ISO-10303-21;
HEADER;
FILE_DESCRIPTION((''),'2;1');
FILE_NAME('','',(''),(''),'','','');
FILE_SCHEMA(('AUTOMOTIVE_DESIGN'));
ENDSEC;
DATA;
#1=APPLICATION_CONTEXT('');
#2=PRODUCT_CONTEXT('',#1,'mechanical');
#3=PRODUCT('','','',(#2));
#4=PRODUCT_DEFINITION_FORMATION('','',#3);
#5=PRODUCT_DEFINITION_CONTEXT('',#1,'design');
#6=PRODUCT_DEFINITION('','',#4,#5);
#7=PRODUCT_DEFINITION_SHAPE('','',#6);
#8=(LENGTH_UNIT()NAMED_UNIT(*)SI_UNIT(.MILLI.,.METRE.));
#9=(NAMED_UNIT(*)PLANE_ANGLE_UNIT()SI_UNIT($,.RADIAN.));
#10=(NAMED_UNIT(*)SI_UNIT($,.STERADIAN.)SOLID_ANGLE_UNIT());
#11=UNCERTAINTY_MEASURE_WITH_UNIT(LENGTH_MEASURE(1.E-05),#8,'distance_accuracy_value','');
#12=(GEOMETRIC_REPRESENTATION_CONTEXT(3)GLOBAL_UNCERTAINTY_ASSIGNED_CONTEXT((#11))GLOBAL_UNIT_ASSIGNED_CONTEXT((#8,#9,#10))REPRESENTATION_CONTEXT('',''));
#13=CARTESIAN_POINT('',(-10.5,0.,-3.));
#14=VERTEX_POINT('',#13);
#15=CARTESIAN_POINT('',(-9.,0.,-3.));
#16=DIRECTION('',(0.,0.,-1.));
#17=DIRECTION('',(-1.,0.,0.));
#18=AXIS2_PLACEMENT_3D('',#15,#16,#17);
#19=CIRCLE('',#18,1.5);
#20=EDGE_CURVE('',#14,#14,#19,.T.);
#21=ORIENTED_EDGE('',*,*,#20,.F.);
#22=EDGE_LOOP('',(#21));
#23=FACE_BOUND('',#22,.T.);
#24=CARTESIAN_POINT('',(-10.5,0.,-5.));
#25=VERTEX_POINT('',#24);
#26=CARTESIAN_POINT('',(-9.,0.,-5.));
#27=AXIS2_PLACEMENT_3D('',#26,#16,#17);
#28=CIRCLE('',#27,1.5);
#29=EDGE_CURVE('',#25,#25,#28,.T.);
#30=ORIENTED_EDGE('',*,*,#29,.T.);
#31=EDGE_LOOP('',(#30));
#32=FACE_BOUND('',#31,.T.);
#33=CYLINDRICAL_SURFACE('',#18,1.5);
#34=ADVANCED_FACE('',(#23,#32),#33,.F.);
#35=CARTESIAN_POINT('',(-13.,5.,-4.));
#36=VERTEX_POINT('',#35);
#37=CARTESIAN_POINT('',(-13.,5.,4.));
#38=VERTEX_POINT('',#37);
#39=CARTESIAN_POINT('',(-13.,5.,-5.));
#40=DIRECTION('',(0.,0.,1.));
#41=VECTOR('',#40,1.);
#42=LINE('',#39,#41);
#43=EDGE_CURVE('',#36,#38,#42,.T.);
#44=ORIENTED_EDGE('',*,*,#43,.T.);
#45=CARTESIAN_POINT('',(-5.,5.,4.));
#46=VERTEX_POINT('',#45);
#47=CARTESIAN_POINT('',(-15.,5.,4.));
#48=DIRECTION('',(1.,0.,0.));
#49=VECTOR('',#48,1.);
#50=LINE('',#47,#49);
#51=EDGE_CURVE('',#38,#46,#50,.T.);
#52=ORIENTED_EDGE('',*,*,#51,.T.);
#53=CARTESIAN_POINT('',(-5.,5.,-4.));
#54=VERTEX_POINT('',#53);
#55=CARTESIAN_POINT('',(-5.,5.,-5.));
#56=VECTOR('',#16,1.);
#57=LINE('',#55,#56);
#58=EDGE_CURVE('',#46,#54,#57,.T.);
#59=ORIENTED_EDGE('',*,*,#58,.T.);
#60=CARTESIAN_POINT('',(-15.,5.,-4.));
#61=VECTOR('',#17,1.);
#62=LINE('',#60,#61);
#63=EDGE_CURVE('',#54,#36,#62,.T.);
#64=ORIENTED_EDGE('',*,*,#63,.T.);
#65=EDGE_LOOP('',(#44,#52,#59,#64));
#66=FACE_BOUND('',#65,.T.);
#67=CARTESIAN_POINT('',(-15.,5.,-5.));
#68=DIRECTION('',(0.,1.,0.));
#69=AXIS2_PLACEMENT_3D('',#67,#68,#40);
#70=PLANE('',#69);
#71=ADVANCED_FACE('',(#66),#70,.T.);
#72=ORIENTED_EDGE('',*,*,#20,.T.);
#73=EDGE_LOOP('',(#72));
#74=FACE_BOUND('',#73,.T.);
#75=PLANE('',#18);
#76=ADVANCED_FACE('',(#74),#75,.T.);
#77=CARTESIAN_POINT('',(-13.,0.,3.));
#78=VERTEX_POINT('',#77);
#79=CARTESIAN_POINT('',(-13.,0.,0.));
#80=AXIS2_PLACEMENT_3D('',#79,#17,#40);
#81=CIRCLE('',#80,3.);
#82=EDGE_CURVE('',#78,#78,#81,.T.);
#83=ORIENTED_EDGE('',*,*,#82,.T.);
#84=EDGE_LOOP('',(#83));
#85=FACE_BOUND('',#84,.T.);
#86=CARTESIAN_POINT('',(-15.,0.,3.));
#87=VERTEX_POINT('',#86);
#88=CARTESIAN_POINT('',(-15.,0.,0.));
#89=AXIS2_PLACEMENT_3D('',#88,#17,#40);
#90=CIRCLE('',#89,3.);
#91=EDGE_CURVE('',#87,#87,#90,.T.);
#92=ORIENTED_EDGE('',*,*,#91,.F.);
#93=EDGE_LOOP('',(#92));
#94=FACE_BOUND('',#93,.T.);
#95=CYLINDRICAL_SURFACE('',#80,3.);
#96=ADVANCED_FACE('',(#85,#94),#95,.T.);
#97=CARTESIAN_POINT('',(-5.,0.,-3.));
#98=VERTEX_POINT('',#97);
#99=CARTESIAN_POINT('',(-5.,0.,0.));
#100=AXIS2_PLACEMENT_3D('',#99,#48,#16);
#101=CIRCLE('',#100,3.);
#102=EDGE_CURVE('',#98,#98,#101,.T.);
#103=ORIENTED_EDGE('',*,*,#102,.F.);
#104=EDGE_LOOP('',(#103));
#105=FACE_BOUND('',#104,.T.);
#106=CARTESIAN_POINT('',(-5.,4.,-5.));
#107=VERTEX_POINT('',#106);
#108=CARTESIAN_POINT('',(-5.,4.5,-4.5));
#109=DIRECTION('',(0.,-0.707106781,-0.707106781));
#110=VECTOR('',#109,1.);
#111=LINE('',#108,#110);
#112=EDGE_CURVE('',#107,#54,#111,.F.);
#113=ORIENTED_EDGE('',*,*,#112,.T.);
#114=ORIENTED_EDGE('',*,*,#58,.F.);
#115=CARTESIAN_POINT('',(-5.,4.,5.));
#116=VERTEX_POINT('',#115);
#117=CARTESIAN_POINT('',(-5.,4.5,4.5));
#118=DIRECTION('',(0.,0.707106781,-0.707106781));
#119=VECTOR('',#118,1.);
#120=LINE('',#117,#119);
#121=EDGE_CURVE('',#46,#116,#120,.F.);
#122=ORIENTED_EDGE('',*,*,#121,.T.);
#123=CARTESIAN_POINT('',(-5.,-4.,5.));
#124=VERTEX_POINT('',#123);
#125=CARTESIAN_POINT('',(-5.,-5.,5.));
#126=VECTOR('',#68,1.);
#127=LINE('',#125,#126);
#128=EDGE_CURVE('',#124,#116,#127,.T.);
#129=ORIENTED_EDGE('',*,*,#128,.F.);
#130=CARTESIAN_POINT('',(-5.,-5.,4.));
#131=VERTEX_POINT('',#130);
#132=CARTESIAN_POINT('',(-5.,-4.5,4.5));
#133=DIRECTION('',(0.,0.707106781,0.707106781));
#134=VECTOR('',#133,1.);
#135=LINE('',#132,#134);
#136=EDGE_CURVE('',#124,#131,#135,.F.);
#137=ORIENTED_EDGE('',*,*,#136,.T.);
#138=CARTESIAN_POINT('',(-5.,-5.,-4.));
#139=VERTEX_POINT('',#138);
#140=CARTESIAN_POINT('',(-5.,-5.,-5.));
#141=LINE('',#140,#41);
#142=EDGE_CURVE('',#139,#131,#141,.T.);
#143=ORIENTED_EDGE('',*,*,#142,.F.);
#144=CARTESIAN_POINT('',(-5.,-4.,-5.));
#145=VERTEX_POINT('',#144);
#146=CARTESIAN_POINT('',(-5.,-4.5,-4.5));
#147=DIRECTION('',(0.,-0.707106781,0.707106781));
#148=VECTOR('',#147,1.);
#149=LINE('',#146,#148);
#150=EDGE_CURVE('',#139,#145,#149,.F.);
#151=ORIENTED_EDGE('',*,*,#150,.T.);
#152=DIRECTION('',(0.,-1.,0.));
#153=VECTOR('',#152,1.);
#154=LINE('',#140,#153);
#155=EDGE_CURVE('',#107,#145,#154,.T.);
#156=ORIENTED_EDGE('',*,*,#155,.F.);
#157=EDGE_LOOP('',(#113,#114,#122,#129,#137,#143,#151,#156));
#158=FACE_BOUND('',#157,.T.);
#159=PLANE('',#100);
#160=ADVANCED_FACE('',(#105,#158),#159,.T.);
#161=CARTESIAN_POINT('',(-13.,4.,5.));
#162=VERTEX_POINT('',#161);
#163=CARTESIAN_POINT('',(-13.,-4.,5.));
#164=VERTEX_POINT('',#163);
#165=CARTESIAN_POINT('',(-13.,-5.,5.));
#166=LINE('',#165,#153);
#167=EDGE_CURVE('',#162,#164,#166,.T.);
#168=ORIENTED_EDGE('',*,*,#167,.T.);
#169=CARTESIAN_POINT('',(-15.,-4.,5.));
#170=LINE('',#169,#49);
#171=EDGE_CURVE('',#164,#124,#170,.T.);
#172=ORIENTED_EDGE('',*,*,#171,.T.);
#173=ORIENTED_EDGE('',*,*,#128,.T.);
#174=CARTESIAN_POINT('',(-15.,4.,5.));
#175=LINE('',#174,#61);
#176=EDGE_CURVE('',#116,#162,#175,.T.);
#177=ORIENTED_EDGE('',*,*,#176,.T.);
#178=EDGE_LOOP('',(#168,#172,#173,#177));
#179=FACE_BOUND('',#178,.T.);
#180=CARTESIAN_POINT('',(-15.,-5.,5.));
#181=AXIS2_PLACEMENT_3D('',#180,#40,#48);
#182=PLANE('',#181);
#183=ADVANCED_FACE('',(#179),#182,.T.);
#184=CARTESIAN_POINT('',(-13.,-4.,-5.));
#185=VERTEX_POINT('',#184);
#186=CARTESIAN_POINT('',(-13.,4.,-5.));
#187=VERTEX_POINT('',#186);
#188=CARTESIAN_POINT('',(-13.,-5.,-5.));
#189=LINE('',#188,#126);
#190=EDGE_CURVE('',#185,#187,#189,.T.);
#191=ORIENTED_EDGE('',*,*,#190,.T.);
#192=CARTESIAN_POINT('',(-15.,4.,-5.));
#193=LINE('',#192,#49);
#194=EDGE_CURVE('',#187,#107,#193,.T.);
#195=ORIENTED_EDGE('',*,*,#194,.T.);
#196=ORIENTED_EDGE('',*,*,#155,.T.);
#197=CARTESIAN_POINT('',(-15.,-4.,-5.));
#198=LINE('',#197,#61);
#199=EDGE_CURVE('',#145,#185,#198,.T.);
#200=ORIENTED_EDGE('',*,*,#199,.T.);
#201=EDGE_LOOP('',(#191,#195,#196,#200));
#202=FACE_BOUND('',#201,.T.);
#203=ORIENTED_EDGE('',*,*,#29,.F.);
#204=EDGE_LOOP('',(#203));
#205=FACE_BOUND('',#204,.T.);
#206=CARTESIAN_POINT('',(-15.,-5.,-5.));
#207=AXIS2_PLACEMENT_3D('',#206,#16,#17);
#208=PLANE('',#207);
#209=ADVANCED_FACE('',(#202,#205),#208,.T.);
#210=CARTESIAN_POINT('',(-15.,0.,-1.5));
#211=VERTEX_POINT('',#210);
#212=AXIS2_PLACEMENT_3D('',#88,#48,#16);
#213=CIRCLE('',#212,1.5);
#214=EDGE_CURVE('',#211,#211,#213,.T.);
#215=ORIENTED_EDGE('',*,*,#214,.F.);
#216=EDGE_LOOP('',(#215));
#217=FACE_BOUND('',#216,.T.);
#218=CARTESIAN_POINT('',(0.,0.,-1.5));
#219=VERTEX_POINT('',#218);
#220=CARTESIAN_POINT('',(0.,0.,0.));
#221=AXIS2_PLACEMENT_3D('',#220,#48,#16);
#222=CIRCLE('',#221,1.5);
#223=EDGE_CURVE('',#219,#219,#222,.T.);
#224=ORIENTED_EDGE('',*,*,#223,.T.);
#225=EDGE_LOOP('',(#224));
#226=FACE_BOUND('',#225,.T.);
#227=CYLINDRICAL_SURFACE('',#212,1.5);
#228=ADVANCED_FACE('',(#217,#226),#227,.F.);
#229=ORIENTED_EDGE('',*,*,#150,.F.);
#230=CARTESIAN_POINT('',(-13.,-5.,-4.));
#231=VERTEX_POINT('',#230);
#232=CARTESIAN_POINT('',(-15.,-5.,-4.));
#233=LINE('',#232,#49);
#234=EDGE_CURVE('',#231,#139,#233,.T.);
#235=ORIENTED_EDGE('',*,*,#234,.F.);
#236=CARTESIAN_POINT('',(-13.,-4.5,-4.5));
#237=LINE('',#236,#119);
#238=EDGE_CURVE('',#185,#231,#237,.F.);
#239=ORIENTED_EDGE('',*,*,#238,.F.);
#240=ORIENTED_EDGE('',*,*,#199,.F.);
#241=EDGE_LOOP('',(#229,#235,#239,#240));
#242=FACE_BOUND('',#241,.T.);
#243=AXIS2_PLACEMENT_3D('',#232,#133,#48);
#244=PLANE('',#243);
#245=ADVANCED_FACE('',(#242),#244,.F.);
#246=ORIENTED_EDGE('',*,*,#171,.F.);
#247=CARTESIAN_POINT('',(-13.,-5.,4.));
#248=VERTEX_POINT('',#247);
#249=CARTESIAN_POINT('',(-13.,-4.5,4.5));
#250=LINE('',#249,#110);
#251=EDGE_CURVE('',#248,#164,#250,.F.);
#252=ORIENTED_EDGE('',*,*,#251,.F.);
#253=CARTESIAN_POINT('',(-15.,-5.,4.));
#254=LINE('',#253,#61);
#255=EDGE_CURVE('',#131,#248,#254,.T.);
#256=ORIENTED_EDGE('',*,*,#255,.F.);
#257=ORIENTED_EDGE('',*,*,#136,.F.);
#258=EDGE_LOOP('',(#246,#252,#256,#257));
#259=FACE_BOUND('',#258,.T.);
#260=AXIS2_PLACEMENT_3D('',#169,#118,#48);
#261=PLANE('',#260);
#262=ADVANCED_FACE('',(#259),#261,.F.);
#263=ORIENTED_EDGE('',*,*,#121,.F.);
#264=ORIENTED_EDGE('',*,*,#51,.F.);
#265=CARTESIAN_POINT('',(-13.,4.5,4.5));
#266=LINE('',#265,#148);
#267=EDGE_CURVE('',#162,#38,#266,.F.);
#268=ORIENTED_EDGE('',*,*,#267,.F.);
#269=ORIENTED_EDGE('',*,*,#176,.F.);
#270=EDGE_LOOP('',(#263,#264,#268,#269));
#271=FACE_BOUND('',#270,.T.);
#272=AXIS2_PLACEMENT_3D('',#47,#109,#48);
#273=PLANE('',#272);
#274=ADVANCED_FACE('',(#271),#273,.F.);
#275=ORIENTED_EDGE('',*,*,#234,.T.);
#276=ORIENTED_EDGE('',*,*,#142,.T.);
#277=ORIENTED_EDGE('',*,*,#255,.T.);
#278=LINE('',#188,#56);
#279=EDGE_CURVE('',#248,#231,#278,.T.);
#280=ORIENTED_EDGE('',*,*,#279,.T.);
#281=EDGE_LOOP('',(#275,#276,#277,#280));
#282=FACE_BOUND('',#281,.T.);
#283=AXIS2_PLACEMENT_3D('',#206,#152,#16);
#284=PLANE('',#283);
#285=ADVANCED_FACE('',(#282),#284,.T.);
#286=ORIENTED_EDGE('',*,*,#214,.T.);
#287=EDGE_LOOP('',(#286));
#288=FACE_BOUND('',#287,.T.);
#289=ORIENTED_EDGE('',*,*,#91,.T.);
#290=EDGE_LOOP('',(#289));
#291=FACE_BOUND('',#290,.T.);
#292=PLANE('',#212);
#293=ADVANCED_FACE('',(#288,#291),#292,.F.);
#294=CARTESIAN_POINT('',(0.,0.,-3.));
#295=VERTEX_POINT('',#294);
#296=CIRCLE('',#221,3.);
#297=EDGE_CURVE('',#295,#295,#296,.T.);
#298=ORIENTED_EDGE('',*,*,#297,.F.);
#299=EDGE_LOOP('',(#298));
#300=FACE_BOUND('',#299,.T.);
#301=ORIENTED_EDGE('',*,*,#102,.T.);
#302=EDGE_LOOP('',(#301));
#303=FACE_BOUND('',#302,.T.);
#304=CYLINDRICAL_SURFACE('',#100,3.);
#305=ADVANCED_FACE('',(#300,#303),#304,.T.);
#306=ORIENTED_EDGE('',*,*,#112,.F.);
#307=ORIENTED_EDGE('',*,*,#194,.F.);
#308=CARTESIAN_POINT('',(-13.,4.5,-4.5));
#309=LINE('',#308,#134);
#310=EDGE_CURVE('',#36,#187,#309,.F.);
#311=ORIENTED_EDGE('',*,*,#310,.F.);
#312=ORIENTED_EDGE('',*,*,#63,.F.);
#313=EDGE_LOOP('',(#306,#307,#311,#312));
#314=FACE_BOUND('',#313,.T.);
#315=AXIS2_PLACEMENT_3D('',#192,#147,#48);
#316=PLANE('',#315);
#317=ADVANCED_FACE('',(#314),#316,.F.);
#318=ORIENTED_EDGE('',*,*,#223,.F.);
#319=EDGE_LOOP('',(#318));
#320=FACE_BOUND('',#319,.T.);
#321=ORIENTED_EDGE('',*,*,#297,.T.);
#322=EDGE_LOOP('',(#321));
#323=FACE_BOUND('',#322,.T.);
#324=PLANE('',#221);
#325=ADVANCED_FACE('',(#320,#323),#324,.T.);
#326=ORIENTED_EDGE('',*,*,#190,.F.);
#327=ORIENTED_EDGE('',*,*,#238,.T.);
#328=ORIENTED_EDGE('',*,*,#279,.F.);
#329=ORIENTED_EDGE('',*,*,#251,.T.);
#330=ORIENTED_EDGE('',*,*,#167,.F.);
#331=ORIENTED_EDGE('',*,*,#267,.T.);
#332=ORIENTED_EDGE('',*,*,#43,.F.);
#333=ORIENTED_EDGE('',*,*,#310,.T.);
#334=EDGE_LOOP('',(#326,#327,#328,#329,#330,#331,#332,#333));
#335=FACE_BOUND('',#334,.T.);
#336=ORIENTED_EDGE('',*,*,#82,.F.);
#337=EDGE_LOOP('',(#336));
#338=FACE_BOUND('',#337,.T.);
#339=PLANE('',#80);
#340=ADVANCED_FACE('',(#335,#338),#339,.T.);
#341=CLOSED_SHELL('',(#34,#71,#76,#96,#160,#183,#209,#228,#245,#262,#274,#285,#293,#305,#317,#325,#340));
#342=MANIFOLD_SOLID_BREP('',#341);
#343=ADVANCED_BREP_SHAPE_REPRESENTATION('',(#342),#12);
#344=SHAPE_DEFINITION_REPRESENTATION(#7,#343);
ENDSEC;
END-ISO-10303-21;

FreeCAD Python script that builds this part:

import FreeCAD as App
import Part
import Sketcher
from FreeCAD import Vector


def edges_at(feature, points):
    """Names of the edges that pass closest to the given points."""
    edges = feature.Shape.Edges
    near = lambda p: min(range(len(edges)), key=lambda i: edges[i].distToShape(Part.Vertex(*p))[0])
    return sorted({f"Edge{near(p) + 1}" for p in points})


def add_polygon(sketch, points):
    """Adds a closed chain of lines whose ends are joined by coincident constraints."""
    first, n = sketch.GeometryCount, len(points)
    for a, b in zip(points, points[1:] + points[:1]):
        sketch.addGeometry(Part.LineSegment(App.Vector(*a, 0), App.Vector(*b, 0)), False)
    for i in range(n):
        sketch.addConstraint(Sketcher.Constraint("Coincident", first + i, 2, first + (i + 1) % n, 1))

doc = App.newDocument("Part")
body = doc.addObject("PartDesign::Body", "Body")

# Sketch on YZ plane
sketch1 = body.newObject("Sketcher::SketchObject", "Sketch")
sketch1.AttachmentSupport = (doc.getObject("YZ_Plane"), [""])
sketch1.MapMode = "FlatFace"
add_polygon(sketch1, [(5, 5), (-5, 5), (-5, -5), (5, -5)])  # lines 0-3
sketch1.addConstraint([
    Sketcher.Constraint("Horizontal", 0),
    Sketcher.Constraint("Vertical", 1),
    Sketcher.Constraint("Horizontal", 2),
    Sketcher.Constraint("Vertical", 3),
    Sketcher.Constraint("Symmetric", 0, 2, 2, 2, -1, 1),
    Sketcher.Constraint("Equal", 2, 1),
    Sketcher.Constraint("DistanceX", 0, 2, 0, 1, 10.0),
])
pad1 = body.newObject("PartDesign::Pad", "Pad")
pad1.Profile = sketch1
pad1.Length = 15
pad1.Reversed = True

# Sketch on YZ plane
sketch2 = body.newObject("Sketcher::SketchObject", "Sketch001")
sketch2.AttachmentSupport = (doc.getObject("YZ_Plane"), [""])
sketch2.MapMode = "FlatFace"
sketch2.addGeometry([
    Part.Circle(Vector(0, 0, 0), Vector(0, 0, 1), 15.4),
    Part.Circle(Vector(0, 0, 0), Vector(0, 0, 1), 3),
], False)
sketch2.addConstraint([
    Sketcher.Constraint("Coincident", 0, 3, -1, 1),
    Sketcher.Constraint("Coincident", 1, 3, -1, 1),
    Sketcher.Constraint("Diameter", 1, 6.0),
    Sketcher.Constraint("Diameter", 0, 30.707136),
])
pocket1 = body.newObject("PartDesign::Pocket", "Pocket")
pocket1.Profile = sketch2
pocket1.Length = 5

# Sketch on YZ plane
sketch3 = body.newObject("Sketcher::SketchObject", "Sketch002")
sketch3.AttachmentSupport = (doc.getObject("YZ_Plane"), [""])
sketch3.MapMode = "FlatFace"
sketch3.AttachmentOffset = App.Placement(Vector(0, 0, -13), App.Rotation())
sketch3.addGeometry([
    Part.Circle(Vector(0, 0, 0), Vector(0, 0, 1), 15.6),
    Part.Circle(Vector(0, 0, 0), Vector(0, 0, 1), 3),
], False)
sketch3.addConstraint([
    Sketcher.Constraint("Coincident", 0, 3, -1, 1),
    Sketcher.Constraint("Coincident", 1, 3, -1, 1),
    Sketcher.Constraint("Diameter", 1, 6.0),
    Sketcher.Constraint("Diameter", 0, 31.270823),
])
pocket2 = body.newObject("PartDesign::Pocket", "Pocket001")
pocket2.Profile = sketch3
pocket2.Length = 2

# Sketch on YZ plane
sketch4 = body.newObject("Sketcher::SketchObject", "Sketch003")
sketch4.AttachmentSupport = (doc.getObject("YZ_Plane"), [""])
sketch4.MapMode = "FlatFace"
sketch4.addGeometry(Part.Circle(Vector(0, 0, 0), Vector(0, 0, 1), 1.5), False)
sketch4.addConstraint([
    Sketcher.Constraint("Coincident", 0, 3, -1, 1),
    Sketcher.Constraint("Diameter", 0, 3.0),
])
pocket3 = body.newObject("PartDesign::Pocket", "Pocket002")
pocket3.Profile = sketch4
pocket3.Type = "ThroughAll"
doc.recompute()

chamfer = body.newObject("PartDesign::Chamfer", "Chamfer")
chamfer.Base = (pocket3, edges_at(pocket3, [
    (-9, -5, -5),
    (-9, -5, 5),
    (-9, 5, -5),
    (-9, 5, 5),
]))
chamfer.Size = 1

# Sketch on XY plane
sketch5 = body.newObject("Sketcher::SketchObject", "Sketch004")
sketch5.AttachmentSupport = (doc.getObject("XY_Plane"), [""])
sketch5.MapMode = "FlatFace"
sketch5.AttachmentOffset = App.Placement(Vector(0, 0, -5), App.Rotation())
sketch5.addGeometry(Part.Circle(Vector(-9, 0, 0), Vector(0, 0, 1), 1.5), False)
sketch5.addConstraint([
    Sketcher.Constraint("PointOnObject", 0, 3, -1),
    Sketcher.Constraint("Diameter", 0, 3.0),
    Sketcher.Constraint("DistanceX", 0, 3, -1, 1, 9.0),
])
pocket4 = body.newObject("PartDesign::Pocket", "Pocket003")
pocket4.Profile = sketch5
pocket4.Length = 2
pocket4.Reversed = True

doc.recompute()
